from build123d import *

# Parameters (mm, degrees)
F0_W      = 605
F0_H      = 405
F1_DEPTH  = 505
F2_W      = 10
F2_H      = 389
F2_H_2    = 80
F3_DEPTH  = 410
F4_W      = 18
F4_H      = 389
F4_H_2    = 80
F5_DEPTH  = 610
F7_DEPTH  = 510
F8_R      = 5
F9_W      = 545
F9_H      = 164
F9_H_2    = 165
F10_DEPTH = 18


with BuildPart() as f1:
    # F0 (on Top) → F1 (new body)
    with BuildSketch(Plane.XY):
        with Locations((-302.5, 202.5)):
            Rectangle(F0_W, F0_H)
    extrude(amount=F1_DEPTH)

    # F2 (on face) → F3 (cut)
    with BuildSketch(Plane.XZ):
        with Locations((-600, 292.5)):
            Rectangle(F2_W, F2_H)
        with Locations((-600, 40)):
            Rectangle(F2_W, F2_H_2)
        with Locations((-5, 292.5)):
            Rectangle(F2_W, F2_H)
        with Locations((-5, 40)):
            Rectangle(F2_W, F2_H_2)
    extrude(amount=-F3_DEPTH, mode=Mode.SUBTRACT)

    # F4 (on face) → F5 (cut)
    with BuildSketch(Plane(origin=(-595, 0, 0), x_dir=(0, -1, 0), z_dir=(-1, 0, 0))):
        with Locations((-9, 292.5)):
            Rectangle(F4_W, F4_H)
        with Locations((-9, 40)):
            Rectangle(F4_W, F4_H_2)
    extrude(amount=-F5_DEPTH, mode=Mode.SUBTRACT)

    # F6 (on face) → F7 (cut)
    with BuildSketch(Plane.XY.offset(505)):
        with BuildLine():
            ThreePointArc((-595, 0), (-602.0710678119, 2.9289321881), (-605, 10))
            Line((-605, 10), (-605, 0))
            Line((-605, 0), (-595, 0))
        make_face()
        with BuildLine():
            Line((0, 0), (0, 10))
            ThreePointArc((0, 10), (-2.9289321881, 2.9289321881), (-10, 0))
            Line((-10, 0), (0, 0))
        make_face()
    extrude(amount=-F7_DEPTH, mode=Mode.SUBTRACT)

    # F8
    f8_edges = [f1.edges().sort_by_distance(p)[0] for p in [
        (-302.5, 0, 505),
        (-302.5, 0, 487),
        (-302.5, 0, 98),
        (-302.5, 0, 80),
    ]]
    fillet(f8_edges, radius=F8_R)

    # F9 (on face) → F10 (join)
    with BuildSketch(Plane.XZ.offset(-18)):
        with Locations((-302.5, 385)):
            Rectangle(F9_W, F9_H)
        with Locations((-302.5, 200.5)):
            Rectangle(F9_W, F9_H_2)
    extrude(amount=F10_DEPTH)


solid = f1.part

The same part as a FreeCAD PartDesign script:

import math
import FreeCAD as App
import Part
import Sketcher
from FreeCAD import Vector
Q = App.Units.Quantity


def edges_at(feature, points):
    """Names of the edges that pass closest to the given points."""
    edges = feature.Shape.Edges
    near = lambda p: min(range(len(edges)), key=lambda i: edges[i].distToShape(Part.Vertex(*p))[0])
    return sorted({f"Edge{near(p) + 1}" for p in points})

doc = App.newDocument("Part")
body = doc.addObject("PartDesign::Body", "Body")

# Sketch on XY plane
sketch1 = body.newObject("Sketcher::SketchObject", "Sketch")
sketch1.AttachmentSupport = (doc.getObject("XY_Plane"), [""])
sketch1.MapMode = "FlatFace"
sketch1.addGeometry([
    Part.LineSegment(Vector(-605, 405, 0), Vector(-605, 0, 0)),
    Part.LineSegment(Vector(-605, 0, 0), Vector(0, 0, 0)),
    Part.LineSegment(Vector(0, 0, 0), Vector(0, 405, 0)),
    Part.LineSegment(Vector(0, 405, 0), Vector(-605, 405, 0)),
], False)
sketch1.addConstraint([
    Sketcher.Constraint("Coincident", 0, 2, 1, 1),
    Sketcher.Constraint("Coincident", 1, 2, 2, 1),
    Sketcher.Constraint("Coincident", 2, 2, 3, 1),
    Sketcher.Constraint("Coincident", 3, 2, 0, 1),
    Sketcher.Constraint("Vertical", 0),
    Sketcher.Constraint("Horizontal", 1),
    Sketcher.Constraint("Vertical", 2),
    Sketcher.Constraint("Horizontal", 3),
    Sketcher.Constraint("Coincident", 1, 2, -1, 1),
    Sketcher.Constraint("DistanceX", 1, 1, 1, 2, Q("605 mm")),
    Sketcher.Constraint("DistanceY", 0, 2, 0, 1, Q("405 mm")),
])
pad1 = body.newObject("PartDesign::Pad", "Pad")
pad1.Profile = sketch1
pad1.Length = 505

# Sketch on XZ plane
sketch2 = body.newObject("Sketcher::SketchObject", "Sketch001")
sketch2.AttachmentSupport = (doc.getObject("XZ_Plane"), [""])
sketch2.MapMode = "FlatFace"
sketch2.addGeometry([
    Part.LineSegment(Vector(-605, 487, 0), Vector(-605, 98, 0)),  # 0
    Part.LineSegment(Vector(-605, 98, 0), Vector(-595, 98, 0)),  # 1
    Part.LineSegment(Vector(-595, 98, 0), Vector(-595, 487, 0)),  # 2
    Part.LineSegment(Vector(-595, 487, 0), Vector(-605, 487, 0)),  # 3
    Part.LineSegment(Vector(-605, 80, 0), Vector(-605, 0, 0)),  # 4
    Part.LineSegment(Vector(-605, 0, 0), Vector(-595, 0, 0)),  # 5
    Part.LineSegment(Vector(-595, 0, 0), Vector(-595, 80, 0)),  # 6
    Part.LineSegment(Vector(-595, 80, 0), Vector(-605, 80, 0)),  # 7
    Part.LineSegment(Vector(-10, 487, 0), Vector(-10, 98, 0)),  # 8
    Part.LineSegment(Vector(-10, 98, 0), Vector(0, 98, 0)),  # 9
    Part.LineSegment(Vector(0, 98, 0), Vector(0, 487, 0)),  # 10
    Part.LineSegment(Vector(0, 487, 0), Vector(-10, 487, 0)),  # 11
    Part.LineSegment(Vector(-10, 80, 0), Vector(-10, 0, 0)),  # 12
    Part.LineSegment(Vector(-10, 0, 0), Vector(0, 0, 0)),  # 13
    Part.LineSegment(Vector(0, 0, 0), Vector(0, 80, 0)),  # 14
    Part.LineSegment(Vector(0, 80, 0), Vector(-10, 80, 0)),  # 15
], False)
sketch2.addConstraint([
    Sketcher.Constraint("Coincident", 0, 2, 1, 1),
    Sketcher.Constraint("Coincident", 1, 2, 2, 1),
    Sketcher.Constraint("Coincident", 2, 2, 3, 1),
    Sketcher.Constraint("Coincident", 3, 2, 0, 1),
    Sketcher.Constraint("Coincident", 4, 2, 5, 1),
    Sketcher.Constraint("Coincident", 5, 2, 6, 1),
    Sketcher.Constraint("Coincident", 6, 2, 7, 1),
    Sketcher.Constraint("Coincident", 7, 2, 4, 1),
    Sketcher.Constraint("Coincident", 8, 2, 9, 1),
    Sketcher.Constraint("Coincident", 9, 2, 10, 1),
    Sketcher.Constraint("Coincident", 10, 2, 11, 1),
    Sketcher.Constraint("Coincident", 11, 2, 8, 1),
    Sketcher.Constraint("Coincident", 12, 2, 13, 1),
    Sketcher.Constraint("Coincident", 13, 2, 14, 1),
    Sketcher.Constraint("Coincident", 14, 2, 15, 1),
    Sketcher.Constraint("Coincident", 15, 2, 12, 1),
    Sketcher.Constraint("Vertical", 0),
    Sketcher.Constraint("Horizontal", 1),
    Sketcher.Constraint("Vertical", 2),
    Sketcher.Constraint("Horizontal", 3),
    Sketcher.Constraint("Vertical", 4),
    Sketcher.Constraint("Horizontal", 5),
    Sketcher.Constraint("Vertical", 6),
    Sketcher.Constraint("Horizontal", 7),
    Sketcher.Constraint("Vertical", 8),
    Sketcher.Constraint("Horizontal", 9),
    Sketcher.Constraint("Vertical", 10),
    Sketcher.Constraint("Horizontal", 11),
    Sketcher.Constraint("Vertical", 12),
    Sketcher.Constraint("Horizontal", 13),
    Sketcher.Constraint("Vertical", 14),
    Sketcher.Constraint("Horizontal", 15),
    Sketcher.Constraint("Coincident", 13, 2, -1, 1),
    Sketcher.Constraint("PointOnObject", 4, 2, -1),
    Sketcher.Constraint("PointOnObject", 9, 2, -2),
    Sketcher.Constraint("Horizontal", 1, 2, 8, 2),
    Sketcher.Constraint("Horizontal", 3, 2, 10, 2),
    Sketcher.Constraint("Horizontal", 7, 2, 14, 2),
    Sketcher.Constraint("Vertical", 3, 2, 4, 2),
    Sketcher.Constraint("Vertical", 2, 2, 5, 2),
    Sketcher.Constraint("Vertical", 11, 2, 12, 2),
    Sketcher.Constraint("Equal", 7, 9),
    Sketcher.Constraint("DistanceX", 1, 1, 1, 2, Q("10 mm")),
    Sketcher.Constraint("DistanceY", 0, 2, 0, 1, Q("389 mm")),
    Sketcher.Constraint("DistanceY", 4, 2, 4, 1, Q("80 mm")),
    Sketcher.Constraint("DistanceX", 0, 2, -1, 1, Q("605 mm")),
    Sketcher.Constraint("DistanceY", -1, 1, 0, 2, Q("98 mm")),
])
pocket1 = body.newObject("PartDesign::Pocket", "Pocket")
pocket1.Profile = sketch2
pocket1.Length = 410

# Sketch on YZ plane
sketch3 = body.newObject("Sketcher::SketchObject", "Sketch002")
sketch3.AttachmentSupport = (doc.getObject("YZ_Plane"), [""])
sketch3.MapMode = "FlatFace"
sketch3.AttachmentOffset = App.Placement(Vector(0, 0, -595), App.Rotation())
sketch3.addGeometry([
    Part.LineSegment(Vector(18, 487, 0), Vector(18, 98, 0)),  # 0
    Part.LineSegment(Vector(18, 98, 0), Vector(0, 98, 0)),  # 1
    Part.LineSegment(Vector(0, 98, 0), Vector(0, 487, 0)),  # 2
    Part.LineSegment(Vector(0, 487, 0), Vector(18, 487, 0)),  # 3
    Part.LineSegment(Vector(18, 80, 0), Vector(18, 0, 0)),  # 4
    Part.LineSegment(Vector(18, 0, 0), Vector(0, 0, 0)),  # 5
    Part.LineSegment(Vector(0, 0, 0), Vector(0, 80, 0)),  # 6
    Part.LineSegment(Vector(0, 80, 0), Vector(18, 80, 0)),  # 7
], False)
sketch3.addConstraint([
    Sketcher.Constraint("Coincident", 0, 2, 1, 1),
    Sketcher.Constraint("Coincident", 1, 2, 2, 1),
    Sketcher.Constraint("Coincident", 2, 2, 3, 1),
    Sketcher.Constraint("Coincident", 3, 2, 0, 1),
    Sketcher.Constraint("Coincident", 4, 2, 5, 1),
    Sketcher.Constraint("Coincident", 5, 2, 6, 1),
    Sketcher.Constraint("Coincident", 6, 2, 7, 1),
    Sketcher.Constraint("Coincident", 7, 2, 4, 1),
    Sketcher.Constraint("Vertical", 0),
    Sketcher.Constraint("Horizontal", 1),
    Sketcher.Constraint("Vertical", 2),
    Sketcher.Constraint("Horizontal", 3),
    Sketcher.Constraint("Vertical", 4),
    Sketcher.Constraint("Horizontal", 5),
    Sketcher.Constraint("Vertical", 6),
    Sketcher.Constraint("Horizontal", 7),
    Sketcher.Constraint("Coincident", 5, 2, -1, 1),
    Sketcher.Constraint("PointOnObject", 1, 2, -2),
    Sketcher.Constraint("Vertical", 3, 2, 4, 2),
    Sketcher.Constraint("DistanceX", 1, 2, 1, 1, Q("18 mm")),
    Sketcher.Constraint("DistanceY", 0, 2, 0, 1, Q("389 mm")),
    Sketcher.Constraint("DistanceY", 4, 2, 4, 1, Q("80 mm")),
    Sketcher.Constraint("DistanceY", -1, 1, 0, 2, Q("98 mm")),
])
pocket2 = body.newObject("PartDesign::Pocket", "Pocket001")
pocket2.Profile = sketch3
pocket2.Length = 610
pocket2.Reversed = True

# Sketch on XY plane
sketch4 = body.newObject("Sketcher::SketchObject", "Sketch003")
sketch4.AttachmentSupport = (doc.getObject("XY_Plane"), [""])
sketch4.MapMode = "FlatFace"
sketch4.AttachmentOffset = App.Placement(Vector(0, 0, 505), App.Rotation())
sketch4.addGeometry([
    Part.ArcOfCircle(Part.Circle(Vector(-595, 10, 0), Vector(0, 0, 1), 10), math.radians(180), math.radians(270)),  # 0
    Part.LineSegment(Vector(-605, 10, 0), Vector(-605, 0, 0)),  # 1
    Part.LineSegment(Vector(-605, 0, 0), Vector(-595, 0, 0)),  # 2
    Part.LineSegment(Vector(0, 0, 0), Vector(0, 10, 0)),  # 3
    Part.ArcOfCircle(Part.Circle(Vector(-10, 10, 0), Vector(0, 0, 1), 10), math.radians(-90), math.radians(0)),  # 4
    Part.LineSegment(Vector(-10, 0, 0), Vector(0, 0, 0)),  # 5
], False)
sketch4.addConstraint([
    Sketcher.Constraint("Tangent", 0, 1, 1, 1),
    Sketcher.Constraint("Coincident", 1, 2, 2, 1),
    Sketcher.Constraint("Tangent", 2, 2, 0, 2),
    Sketcher.Constraint("Tangent", 3, 2, 4, 2),
    Sketcher.Constraint("Tangent", 4, 1, 5, 1),
    Sketcher.Constraint("Coincident", 5, 2, 3, 1),
    Sketcher.Constraint("Vertical", 1),
    Sketcher.Constraint("Horizontal", 2),
    Sketcher.Constraint("Vertical", 3),
    Sketcher.Constraint("Horizontal", 5),
    Sketcher.Constraint("Coincident", 5, 2, -1, 1),
    Sketcher.Constraint("Equal", 0, 4),
    Sketcher.Constraint("PointOnObject", 1, 2, -1),
    Sketcher.Constraint("Radius", 0, Q("10 mm")),
    Sketcher.Constraint("DistanceX", 0, 3, -1, 1, Q("595 mm")),
])
pocket3 = body.newObject("PartDesign::Pocket", "Pocket002")
pocket3.Profile = sketch4
pocket3.Length = 510
doc.recompute()

fillet = body.newObject("PartDesign::Fillet", "Fillet")
fillet.Base = (pocket3, edges_at(pocket3, [
    (-302.5, 0, 505),
    (-302.5, 0, 487),
    (-302.5, 0, 98),
    (-302.5, 0, 80),
]))
fillet.Radius = 5

# Sketch on XZ plane
sketch5 = body.newObject("Sketcher::SketchObject", "Sketch004")
sketch5.AttachmentSupport = (doc.getObject("XZ_Plane"), [""])
sketch5.MapMode = "FlatFace"
sketch5.AttachmentOffset = App.Placement(Vector(0, 0, -18), App.Rotation())
sketch5.addGeometry([
    Part.LineSegment(Vector(-575, 467, 0), Vector(-575, 303, 0)),  # 0
    Part.LineSegment(Vector(-575, 303, 0), Vector(-30, 303, 0)),  # 1
    Part.LineSegment(Vector(-30, 303, 0), Vector(-30, 467, 0)),  # 2
    Part.LineSegment(Vector(-30, 467, 0), Vector(-575, 467, 0)),  # 3
    Part.LineSegment(Vector(-575, 283, 0), Vector(-575, 118, 0)),  # 4
    Part.LineSegment(Vector(-575, 118, 0), Vector(-30, 118, 0)),  # 5
    Part.LineSegment(Vector(-30, 118, 0), Vector(-30, 283, 0)),  # 6
    Part.LineSegment(Vector(-30, 283, 0), Vector(-575, 283, 0)),  # 7
], False)
sketch5.addConstraint([
    Sketcher.Constraint("Coincident", 0, 2, 1, 1),
    Sketcher.Constraint("Coincident", 1, 2, 2, 1),
    Sketcher.Constraint("Coincident", 2, 2, 3, 1),
    Sketcher.Constraint("Coincident", 3, 2, 0, 1),
    Sketcher.Constraint("Coincident", 4, 2, 5, 1),
    Sketcher.Constraint("Coincident", 5, 2, 6, 1),
    Sketcher.Constraint("Coincident", 6, 2, 7, 1),
    Sketcher.Constraint("Coincident", 7, 2, 4, 1),
    Sketcher.Constraint("Vertical", 0),
    Sketcher.Constraint("Horizontal", 1),
    Sketcher.Constraint("Vertical", 2),
    Sketcher.Constraint("Horizontal", 3),
    Sketcher.Constraint("Vertical", 4),
    Sketcher.Constraint("Horizontal", 5),
    Sketcher.Constraint("Vertical", 6),
    Sketcher.Constraint("Horizontal", 7),
    Sketcher.Constraint("Vertical", 3, 2, 4, 2),
    Sketcher.Constraint("Vertical", 2, 2, 5, 2),
    Sketcher.Constraint("DistanceX", 1, 1, 1, 2, Q("545 mm")),
    Sketcher.Constraint("DistanceY", 0, 2, 0, 1, Q("164 mm")),
    Sketcher.Constraint("DistanceY", 4, 2, 4, 1, Q("165 mm")),
    Sketcher.Constraint("DistanceX", 0, 2, -1, 1, Q("575 mm")),
    Sketcher.Constraint("DistanceY", -1, 1, 0, 2, Q("303 mm")),
    Sketcher.Constraint("DistanceY", -1, 1, 4, 2, Q("118 mm")),
])
pad2 = body.newObject("PartDesign::Pad", "Pad001")
pad2.Profile = sketch5
pad2.Length = 18

doc.recompute()
